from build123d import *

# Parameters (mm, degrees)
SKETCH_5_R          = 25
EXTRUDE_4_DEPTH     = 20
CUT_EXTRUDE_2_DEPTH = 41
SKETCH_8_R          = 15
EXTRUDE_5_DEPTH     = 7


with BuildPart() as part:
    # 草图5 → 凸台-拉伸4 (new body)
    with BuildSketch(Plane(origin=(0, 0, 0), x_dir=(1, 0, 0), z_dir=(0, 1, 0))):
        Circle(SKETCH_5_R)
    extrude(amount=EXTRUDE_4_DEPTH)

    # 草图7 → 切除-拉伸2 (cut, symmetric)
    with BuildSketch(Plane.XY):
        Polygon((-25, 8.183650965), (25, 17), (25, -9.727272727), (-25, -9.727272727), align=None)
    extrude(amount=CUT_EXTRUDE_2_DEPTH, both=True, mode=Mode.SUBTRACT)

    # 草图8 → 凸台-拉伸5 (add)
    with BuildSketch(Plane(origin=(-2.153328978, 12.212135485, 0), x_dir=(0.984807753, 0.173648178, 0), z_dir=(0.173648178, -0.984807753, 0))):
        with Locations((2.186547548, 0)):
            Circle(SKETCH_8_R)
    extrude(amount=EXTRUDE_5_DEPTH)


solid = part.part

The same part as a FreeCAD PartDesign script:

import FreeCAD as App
import Part
import Sketcher
Q = App.Units.Quantity


def add_polygon(sketch, points):
    """Adds a closed chain of lines whose ends are joined by coincident constraints."""
    first, n = sketch.GeometryCount, len(points)
    for a, b in zip(points, points[1:] + points[:1]):
        sketch.addGeometry(Part.LineSegment(App.Vector(*a, 0), App.Vector(*b, 0)), False)
    for i in range(n):
        sketch.addConstraint(Sketcher.Constraint("Coincident", first + i, 2, first + (i + 1) % n, 1))

doc = App.newDocument("Part")
body = doc.addObject("PartDesign::Body", "Body")

# Sketch on XZ plane
sketch1 = doc.addObject("Sketcher::SketchObject", "Sketch")
body.addObject(sketch1)
sketch1.AttachmentSupport = (doc.XZ_Plane, [""])
sketch1.MapMode = "FlatFace"
sketch1.addGeometry(Part.Circle(App.Vector(0, 0, 0), App.Vector(0, 0, 1), 25), False)
sketch1.addConstraint([
    Sketcher.Constraint("Coincident", 0, 3, -1, 1),
    Sketcher.Constraint("Diameter", 0, Q("50 mm")),
])
pad1 = doc.addObject("PartDesign::Pad", "Pad")
body.addObject(pad1)
pad1.Profile = sketch1
pad1.Length = 20
pad1.Reversed = True

# Sketch on XY plane
sketch2 = doc.addObject("Sketcher::SketchObject", "Sketch001")
body.addObject(sketch2)
sketch2.AttachmentSupport = (doc.XY_Plane, [""])
sketch2.MapMode = "FlatFace"
add_polygon(sketch2, [(25, 17), (-25, 8), (-25, -10), (25, -10)])  # lines 0-3
sketch2.addConstraint([
    Sketcher.Constraint("Vertical", 1),
    Sketcher.Constraint("Horizontal", 2),
    Sketcher.Constraint("Vertical", 3),
    Sketcher.Constraint("DistanceX", 2, 1, 2, 2, Q("50 mm")),
    Sketcher.Constraint("Angle", 0, Q("-170 deg")),
    Sketcher.Constraint("DistanceX", 0, 2, -1, 1, Q("25 mm")),
    Sketcher.Constraint("DistanceY", -1, 1, 3, 2, Q("17 mm")),
    Sketcher.Constraint("DistanceY", 1, 2, 1, 1, Q("17.910924 mm")),
])
pocket1 = doc.addObject("PartDesign::Pocket", "Pocket")
body.addObject(pocket1)
pocket1.Profile = sketch2
pocket1.Length = 82
pocket1.Midplane = True

# Sketch on an angled plane
sketch3 = doc.addObject("Sketcher::SketchObject", "Sketch002")
body.addObject(sketch3)
sketch3.Placement = App.Placement(App.Vector(-2.153329, 12.212135, 0), App.Rotation(App.Vector(0.984807753, 0.173648178, 0), App.Vector(0, 0, 1), App.Vector(0.173648178, -0.984807753, 0), "ZXY"))
sketch3.addGeometry(Part.Circle(App.Vector(2, 0, 0), App.Vector(0, 0, 1), 15), False)
sketch3.addConstraint([
    Sketcher.Constraint("PointOnObject", 0, 3, -1),
    Sketcher.Constraint("Diameter", 0, Q("30 mm")),
    Sketcher.Constraint("DistanceX", -1, 1, 0, 3, Q("2.186548 mm")),
])
pad2 = doc.addObject("PartDesign::Pad", "Pad001")
body.addObject(pad2)
pad2.Profile = sketch3
pad2.Length = 7

doc.recompute()
